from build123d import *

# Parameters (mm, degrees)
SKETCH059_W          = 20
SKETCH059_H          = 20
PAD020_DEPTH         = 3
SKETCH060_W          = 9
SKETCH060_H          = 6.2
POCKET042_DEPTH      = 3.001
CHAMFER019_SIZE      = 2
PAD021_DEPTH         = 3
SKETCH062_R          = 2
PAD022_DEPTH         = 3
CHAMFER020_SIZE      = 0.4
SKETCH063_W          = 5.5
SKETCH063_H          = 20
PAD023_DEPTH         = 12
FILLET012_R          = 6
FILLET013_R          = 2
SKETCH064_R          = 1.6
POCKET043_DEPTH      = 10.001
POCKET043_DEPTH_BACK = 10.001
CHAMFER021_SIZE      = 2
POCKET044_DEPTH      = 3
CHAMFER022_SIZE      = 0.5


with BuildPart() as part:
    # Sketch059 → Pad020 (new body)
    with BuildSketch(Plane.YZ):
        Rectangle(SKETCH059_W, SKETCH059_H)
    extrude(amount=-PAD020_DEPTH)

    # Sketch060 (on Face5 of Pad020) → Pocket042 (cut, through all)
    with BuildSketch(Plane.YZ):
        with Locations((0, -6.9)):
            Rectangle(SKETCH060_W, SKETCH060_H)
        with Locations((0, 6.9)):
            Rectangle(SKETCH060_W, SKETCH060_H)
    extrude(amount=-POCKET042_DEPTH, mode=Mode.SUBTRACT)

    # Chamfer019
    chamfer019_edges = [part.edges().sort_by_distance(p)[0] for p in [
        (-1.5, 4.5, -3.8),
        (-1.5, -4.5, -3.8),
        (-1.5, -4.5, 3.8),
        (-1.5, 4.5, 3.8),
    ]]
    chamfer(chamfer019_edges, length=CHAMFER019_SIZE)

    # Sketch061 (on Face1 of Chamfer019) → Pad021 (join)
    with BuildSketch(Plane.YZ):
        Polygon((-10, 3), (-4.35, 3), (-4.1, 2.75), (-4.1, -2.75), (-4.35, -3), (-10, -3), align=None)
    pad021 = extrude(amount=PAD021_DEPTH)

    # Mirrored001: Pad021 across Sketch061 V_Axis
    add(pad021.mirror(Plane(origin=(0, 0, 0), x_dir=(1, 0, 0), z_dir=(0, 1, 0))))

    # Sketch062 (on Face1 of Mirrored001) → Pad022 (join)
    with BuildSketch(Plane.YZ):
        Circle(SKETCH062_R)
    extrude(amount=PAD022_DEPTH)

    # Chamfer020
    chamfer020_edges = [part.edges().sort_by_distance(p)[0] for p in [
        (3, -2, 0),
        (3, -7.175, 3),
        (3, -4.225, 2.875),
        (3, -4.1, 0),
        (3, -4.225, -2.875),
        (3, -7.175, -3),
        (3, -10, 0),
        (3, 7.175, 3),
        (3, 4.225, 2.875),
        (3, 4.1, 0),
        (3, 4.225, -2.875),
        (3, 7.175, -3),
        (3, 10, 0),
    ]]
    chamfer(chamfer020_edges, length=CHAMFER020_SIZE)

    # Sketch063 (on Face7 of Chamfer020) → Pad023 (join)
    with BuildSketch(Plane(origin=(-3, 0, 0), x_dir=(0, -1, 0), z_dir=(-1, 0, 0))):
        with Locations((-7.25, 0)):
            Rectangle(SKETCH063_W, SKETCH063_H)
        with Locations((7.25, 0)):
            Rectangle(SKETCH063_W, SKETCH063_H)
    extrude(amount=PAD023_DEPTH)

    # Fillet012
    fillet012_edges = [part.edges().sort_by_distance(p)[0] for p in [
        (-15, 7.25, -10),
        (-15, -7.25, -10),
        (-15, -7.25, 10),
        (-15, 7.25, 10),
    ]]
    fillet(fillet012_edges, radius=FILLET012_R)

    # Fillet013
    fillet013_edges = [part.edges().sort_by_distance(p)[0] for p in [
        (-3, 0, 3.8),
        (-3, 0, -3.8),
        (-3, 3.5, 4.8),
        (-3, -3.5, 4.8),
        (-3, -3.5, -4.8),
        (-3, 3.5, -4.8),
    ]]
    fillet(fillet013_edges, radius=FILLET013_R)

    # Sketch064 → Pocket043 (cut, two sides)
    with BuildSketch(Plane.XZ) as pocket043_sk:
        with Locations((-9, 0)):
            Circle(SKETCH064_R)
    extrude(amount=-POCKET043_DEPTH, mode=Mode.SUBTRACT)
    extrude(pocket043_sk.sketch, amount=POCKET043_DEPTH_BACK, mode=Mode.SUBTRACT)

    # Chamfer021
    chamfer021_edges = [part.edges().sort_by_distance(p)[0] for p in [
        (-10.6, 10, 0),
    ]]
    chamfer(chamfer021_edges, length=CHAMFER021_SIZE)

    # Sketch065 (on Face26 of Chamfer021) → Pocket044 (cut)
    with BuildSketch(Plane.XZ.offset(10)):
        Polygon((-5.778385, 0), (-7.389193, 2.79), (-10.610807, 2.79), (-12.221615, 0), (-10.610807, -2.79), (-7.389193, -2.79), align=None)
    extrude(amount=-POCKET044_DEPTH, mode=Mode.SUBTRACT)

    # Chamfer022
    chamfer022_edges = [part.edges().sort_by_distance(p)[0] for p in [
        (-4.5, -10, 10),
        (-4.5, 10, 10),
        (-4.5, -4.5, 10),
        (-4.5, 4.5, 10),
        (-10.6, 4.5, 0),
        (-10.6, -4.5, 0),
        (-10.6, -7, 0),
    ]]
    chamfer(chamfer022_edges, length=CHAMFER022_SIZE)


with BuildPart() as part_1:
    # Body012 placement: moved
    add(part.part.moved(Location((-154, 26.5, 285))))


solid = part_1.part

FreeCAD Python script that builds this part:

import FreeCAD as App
import Part
import Sketcher

V = App.Vector
Q = App.Units.Quantity


def edges_at(feature, points):
    """Names of the edges that pass closest to the given points."""
    edges = feature.Shape.Edges
    near = lambda p: min(range(len(edges)), key=lambda i: edges[i].distToShape(Part.Vertex(*p))[0])
    return sorted({f"Edge{near(p) + 1}" for p in points})

doc = App.newDocument("Part")
params = doc.addObject("Spreadsheet::Sheet", "Params")
for row, (alias, value) in enumerate([
    ("sketch1_width", "20 mm"),
    ("pad1_length", "3 mm"),
    ("sketch2_width", "9 mm"),
    ("sketch2_height", "6.2 mm"),
    ("chamfer_size", "2 mm"),
    ("sketch3_height", "6 mm"),
    ("sketch3_height2", "5.5 mm"),
    ("sketch3_width", "5.65 mm"),
    ("pad2_length", "3 mm"),
    ("sketch4_diameter", "4 mm"),
    ("pad3_length", "3 mm"),
    ("chamfer2_size", "0.4 mm"),
    ("sketch5_height", "20 mm"),
    ("sketch5_width", "5.5 mm"),
    ("pad4_length", "12 mm"),
    ("fillet_radius", "6 mm"),
    ("fillet2_radius", "2 mm"),
    ("sketch6_diameter", "3.2 mm"),
    ("chamfer3_size", "2 mm"),
    ("pocket3_length", "3 mm"),
    ("chamfer4_size", "0.5 mm"),
], start=1):
    params.set(f"A{row}", alias)
    params.set(f"B{row}", "=" + value)
    params.setAlias(f"B{row}", alias)

body = doc.addObject("PartDesign::Body", "Body")

# Sketch on YZ plane
sketch1 = doc.addObject("Sketcher::SketchObject", "Sketch")
body.addObject(sketch1)
sketch1.AttachmentSupport = (doc.YZ_Plane, [""])
sketch1.MapMode = "FlatFace"
sketch1.addGeometry(Part.LineSegment(V(-10, 10, 0), V(-10, -10, 0)), False)
sketch1.addGeometry(Part.LineSegment(V(-10, -10, 0), V(10, -10, 0)), False)
sketch1.addGeometry(Part.LineSegment(V(10, -10, 0), V(10, 10, 0)), False)
sketch1.addGeometry(Part.LineSegment(V(10, 10, 0), V(-10, 10, 0)), False)
sketch1.addConstraint(Sketcher.Constraint("Coincident", 0, 2, 1, 1))
sketch1.addConstraint(Sketcher.Constraint("Coincident", 1, 2, 2, 1))
sketch1.addConstraint(Sketcher.Constraint("Coincident", 2, 2, 3, 1))
sketch1.addConstraint(Sketcher.Constraint("Coincident", 3, 2, 0, 1))
sketch1.addConstraint(Sketcher.Constraint("Vertical", 0))
sketch1.addConstraint(Sketcher.Constraint("Horizontal", 1))
sketch1.addConstraint(Sketcher.Constraint("Vertical", 2))
sketch1.addConstraint(Sketcher.Constraint("Horizontal", 3))
sketch1.addConstraint(Sketcher.Constraint("Symmetric", 0, 2, 2, 2, -1, 1))
sketch1.addConstraint(Sketcher.Constraint("Equal", 3, 0))
sketch1.addConstraint(Sketcher.Constraint("DistanceX", 1, 1, 1, 2, Q("20 mm")))
sketch1.setExpression("Constraints[10]", "Params.sketch1_width")
pad1 = doc.addObject("PartDesign::Pad", "Pad")
body.addObject(pad1)
pad1.Profile = sketch1
pad1.setExpression("Length", "Params.pad1_length")
pad1.Reversed = True

# Sketch on YZ plane
sketch2 = doc.addObject("Sketcher::SketchObject", "Sketch001")
body.addObject(sketch2)
sketch2.AttachmentSupport = (doc.YZ_Plane, [""])
sketch2.MapMode = "FlatFace"
sketch2.addGeometry(Part.LineSegment(V(-4.5, -3.8, 0), V(-4.5, -10, 0)), False)
sketch2.addGeometry(Part.LineSegment(V(-4.5, -10, 0), V(4.5, -10, 0)), False)
sketch2.addGeometry(Part.LineSegment(V(4.5, -10, 0), V(4.5, -3.8, 0)), False)
sketch2.addGeometry(Part.LineSegment(V(4.5, -3.8, 0), V(-4.5, -3.8, 0)), False)
sketch2.addGeometry(Part.LineSegment(V(-4.5, 10, 0), V(-4.5, 3.8, 0)), False)
sketch2.addGeometry(Part.LineSegment(V(-4.5, 3.8, 0), V(4.5, 3.8, 0)), False)
sketch2.addGeometry(Part.LineSegment(V(4.5, 3.8, 0), V(4.5, 10, 0)), False)
sketch2.addGeometry(Part.LineSegment(V(4.5, 10, 0), V(-4.5, 10, 0)), False)
sketch2.addConstraint(Sketcher.Constraint("Coincident", 0, 2, 1, 1))
sketch2.addConstraint(Sketcher.Constraint("Coincident", 1, 2, 2, 1))
sketch2.addConstraint(Sketcher.Constraint("Coincident", 2, 2, 3, 1))
sketch2.addConstraint(Sketcher.Constraint("Coincident", 3, 2, 0, 1))
sketch2.addConstraint(Sketcher.Constraint("Coincident", 4, 2, 5, 1))
sketch2.addConstraint(Sketcher.Constraint("Coincident", 5, 2, 6, 1))
sketch2.addConstraint(Sketcher.Constraint("Coincident", 6, 2, 7, 1))
sketch2.addConstraint(Sketcher.Constraint("Coincident", 7, 2, 4, 1))
sketch2.addConstraint(Sketcher.Constraint("Vertical", 0))
sketch2.addConstraint(Sketcher.Constraint("Horizontal", 1))
sketch2.addConstraint(Sketcher.Constraint("Vertical", 2))
sketch2.addConstraint(Sketcher.Constraint("Horizontal", 3))
sketch2.addConstraint(Sketcher.Constraint("Vertical", 4))
sketch2.addConstraint(Sketcher.Constraint("Horizontal", 5))
sketch2.addConstraint(Sketcher.Constraint("Vertical", 6))
sketch2.addConstraint(Sketcher.Constraint("Horizontal", 7))
sketch2.addConstraint(Sketcher.Constraint("Symmetric", 2, 2, 4, 2, -1, 1))
sketch2.addConstraint(Sketcher.Constraint("Symmetric", 0, 2, 6, 2, -1, 1))
sketch2.addConstraint(Sketcher.Constraint("Vertical", 3, 2, 4, 2))
sketch2.addConstraint(Sketcher.Constraint("DistanceX", 1, 1, 1, 2, Q("9 mm")))
sketch2.addConstraint(Sketcher.Constraint("DistanceY", 0, 2, 0, 1, Q("6.2 mm")))
sketch2.addConstraint(Sketcher.Constraint("DistanceY", 0, 2, -1, 1, Q("10 mm")))
sketch2.setExpression("Constraints[19]", "Params.sketch2_width")
sketch2.setExpression("Constraints[20]", "Params.sketch2_height")
pocket1 = doc.addObject("PartDesign::Pocket", "Pocket")
body.addObject(pocket1)
pocket1.Profile = sketch2
pocket1.Type = "ThroughAll"
doc.recompute()

chamfer = doc.addObject("PartDesign::Chamfer", "Chamfer")
body.addObject(chamfer)
chamfer.Base = (pocket1, edges_at(pocket1, [
    (-1.5, 4.5, -3.8),
    (-1.5, -4.5, -3.8),
    (-1.5, -4.5, 3.8),
    (-1.5, 4.5, 3.8),
]))
chamfer.setExpression("Size", "Params.chamfer_size")

# Sketch on YZ plane
sketch3 = doc.addObject("Sketcher::SketchObject", "Sketch002")
body.addObject(sketch3)
sketch3.AttachmentSupport = (doc.YZ_Plane, [""])
sketch3.MapMode = "FlatFace"
sketch3.addGeometry(Part.LineSegment(V(-4.35, 3, 0), V(-10, 3, 0)), False)
sketch3.addGeometry(Part.LineSegment(V(-10, 3, 0), V(-10, -3, 0)), False)
sketch3.addGeometry(Part.LineSegment(V(-10, -3, 0), V(-4.35, -3, 0)), False)
sketch3.addGeometry(Part.LineSegment(V(-4.35, -3, 0), V(-4.1, -2.75, 0)), False)
sketch3.addGeometry(Part.LineSegment(V(-4.1, -2.75, 0), V(-4.1, 2.75, 0)), False)
sketch3.addGeometry(Part.LineSegment(V(-4.1, 2.75, 0), V(-4.35, 3, 0)), False)
sketch3.addConstraint(Sketcher.Constraint("Coincident", 0, 2, 1, 1))
sketch3.addConstraint(Sketcher.Constraint("Coincident", 1, 2, 2, 1))
sketch3.addConstraint(Sketcher.Constraint("Coincident", 2, 2, 3, 1))
sketch3.addConstraint(Sketcher.Constraint("Coincident", 3, 2, 4, 1))
sketch3.addConstraint(Sketcher.Constraint("Coincident", 4, 2, 5, 1))
sketch3.addConstraint(Sketcher.Constraint("Coincident", 5, 2, 0, 1))
sketch3.addConstraint(Sketcher.Constraint("Horizontal", 0))
sketch3.addConstraint(Sketcher.Constraint("Vertical", 1))
sketch3.addConstraint(Sketcher.Constraint("Horizontal", 2))
sketch3.addConstraint(Sketcher.Constraint("Vertical", 4))
sketch3.addConstraint(Sketcher.Constraint("Symmetric", 2, 2, 5, 2, -1))
sketch3.addConstraint(Sketcher.Constraint("Perpendicular", 3, 5))
sketch3.addConstraint(Sketcher.Constraint("Equal", 3, 5))
sketch3.addConstraint(Sketcher.Constraint("DistanceY", 1, 2, 1, 1, Q("6 mm")))
sketch3.addConstraint(Sketcher.Constraint("DistanceY", 4, 1, 4, 2, Q("5.5 mm")))
sketch3.addConstraint(Sketcher.Constraint("DistanceX", 0, 2, -1, 1, Q("10 mm")))
sketch3.addConstraint(Sketcher.Constraint("DistanceX", 0, 2, 0, 1, Q("5.65 mm")))
sketch3.setExpression("Constraints[13]", "Params.sketch3_height")
sketch3.setExpression("Constraints[14]", "Params.sketch3_height2")
sketch3.setExpression("Constraints[16]", "Params.sketch3_width")
pad2 = doc.addObject("PartDesign::Pad", "Pad001")
body.addObject(pad2)
pad2.Profile = sketch3
pad2.setExpression("Length", "Params.pad2_length")
doc.recompute()

mirrored = doc.addObject("PartDesign::Mirrored", "Mirrored")
body.addObject(mirrored)
mirrored.Originals = [pad2]
mirrored.MirrorPlane = (doc.XZ_Plane, [""])
body.Tip = mirrored

# Sketch on YZ plane
sketch4 = doc.addObject("Sketcher::SketchObject", "Sketch003")
body.addObject(sketch4)
sketch4.AttachmentSupport = (doc.YZ_Plane, [""])
sketch4.MapMode = "FlatFace"
sketch4.addGeometry(Part.Circle(V(0, 0, 0), V(0, 0, 1), 2), False)
sketch4.addConstraint(Sketcher.Constraint("Coincident", 0, 3, -1, 1))
sketch4.addConstraint(Sketcher.Constraint("Diameter", 0, Q("4 mm")))
sketch4.setExpression("Constraints[1]", "Params.sketch4_diameter")
pad3 = doc.addObject("PartDesign::Pad", "Pad002")
body.addObject(pad3)
pad3.Profile = sketch4
pad3.setExpression("Length", "Params.pad3_length")
doc.recompute()

chamfer2 = doc.addObject("PartDesign::Chamfer", "Chamfer001")
body.addObject(chamfer2)
chamfer2.Base = (pad3, edges_at(pad3, [
    (3, -2, 0),
    (3, -7.175, 3),
    (3, -4.225, 2.875),
    (3, -4.1, 0),
    (3, -4.225, -2.875),
    (3, -7.175, -3),
    (3, -10, 0),
    (3, 7.175, 3),
    (3, 4.225, 2.875),
    (3, 4.1, 0),
    (3, 4.225, -2.875),
    (3, 7.175, -3),
    (3, 10, 0),
]))
chamfer2.setExpression("Size", "Params.chamfer2_size")

# Sketch on YZ plane
sketch5 = doc.addObject("Sketcher::SketchObject", "Sketch004")
body.addObject(sketch5)
sketch5.AttachmentSupport = (doc.YZ_Plane, [""])
sketch5.MapMode = "FlatFace"
sketch5.AttachmentOffset = App.Placement(V(0, 0, -3), App.Rotation())
sketch5.addGeometry(Part.LineSegment(V(10, 10, 0), V(10, -10, 0)), False)
sketch5.addGeometry(Part.LineSegment(V(10, -10, 0), V(4.5, -10, 0)), False)
sketch5.addGeometry(Part.LineSegment(V(4.5, -10, 0), V(4.5, 10, 0)), False)
sketch5.addGeometry(Part.LineSegment(V(4.5, 10, 0), V(10, 10, 0)), False)
sketch5.addGeometry(Part.LineSegment(V(-4.5, 10, 0), V(-4.5, -10, 0)), False)
sketch5.addGeometry(Part.LineSegment(V(-4.5, -10, 0), V(-10, -10, 0)), False)
sketch5.addGeometry(Part.LineSegment(V(-10, -10, 0), V(-10, 10, 0)), False)
sketch5.addGeometry(Part.LineSegment(V(-10, 10, 0), V(-4.5, 10, 0)), False)
sketch5.addConstraint(Sketcher.Constraint("Coincident", 0, 2, 1, 1))
sketch5.addConstraint(Sketcher.Constraint("Coincident", 1, 2, 2, 1))
sketch5.addConstraint(Sketcher.Constraint("Coincident", 2, 2, 3, 1))
sketch5.addConstraint(Sketcher.Constraint("Coincident", 3, 2, 0, 1))
sketch5.addConstraint(Sketcher.Constraint("Coincident", 4, 2, 5, 1))
sketch5.addConstraint(Sketcher.Constraint("Coincident", 5, 2, 6, 1))
sketch5.addConstraint(Sketcher.Constraint("Coincident", 6, 2, 7, 1))
sketch5.addConstraint(Sketcher.Constraint("Coincident", 7, 2, 4, 1))
sketch5.addConstraint(Sketcher.Constraint("Vertical", 0))
sketch5.addConstraint(Sketcher.Constraint("Horizontal", 1))
sketch5.addConstraint(Sketcher.Constraint("Vertical", 2))
sketch5.addConstraint(Sketcher.Constraint("Horizontal", 3))
sketch5.addConstraint(Sketcher.Constraint("Vertical", 4))
sketch5.addConstraint(Sketcher.Constraint("Horizontal", 5))
sketch5.addConstraint(Sketcher.Constraint("Vertical", 6))
sketch5.addConstraint(Sketcher.Constraint("Horizontal", 7))
sketch5.addConstraint(Sketcher.Constraint("Symmetric", 2, 2, 4, 2, -1, 1))
sketch5.addConstraint(Sketcher.Constraint("Symmetric", 0, 2, 6, 2, -1, 1))
sketch5.addConstraint(Sketcher.Constraint("Horizontal", 1, 2, 4, 2))
sketch5.addConstraint(Sketcher.Constraint("DistanceY", 0, 2, 0, 1, Q("20 mm")))
sketch5.addConstraint(Sketcher.Constraint("DistanceX", 1, 2, 1, 1, Q("5.5 mm")))
sketch5.addConstraint(Sketcher.Constraint("DistanceX", -1, 1, 0, 2, Q("10 mm")))
sketch5.setExpression("Constraints[19]", "Params.sketch5_height")
sketch5.setExpression("Constraints[20]", "Params.sketch5_width")
pad4 = doc.addObject("PartDesign::Pad", "Pad003")
body.addObject(pad4)
pad4.Profile = sketch5
pad4.setExpression("Length", "Params.pad4_length")
pad4.Reversed = True
doc.recompute()

fillet = doc.addObject("PartDesign::Fillet", "Fillet")
body.addObject(fillet)
fillet.Base = (pad4, edges_at(pad4, [
    (-15, 7.25, -10),
    (-15, -7.25, -10),
    (-15, -7.25, 10),
    (-15, 7.25, 10),
]))
fillet.setExpression("Radius", "Params.fillet_radius")
doc.recompute()

fillet2 = doc.addObject("PartDesign::Fillet", "Fillet001")
body.addObject(fillet2)
fillet2.Base = (fillet, edges_at(fillet, [
    (-3, 0, 3.8),
    (-3, 0, -3.8),
    (-3, 3.5, 4.8),
    (-3, -3.5, 4.8),
    (-3, -3.5, -4.8),
    (-3, 3.5, -4.8),
]))
fillet2.setExpression("Radius", "Params.fillet2_radius")

# Sketch on XZ plane
sketch6 = doc.addObject("Sketcher::SketchObject", "Sketch005")
body.addObject(sketch6)
sketch6.AttachmentSupport = (doc.XZ_Plane, [""])
sketch6.MapMode = "FlatFace"
sketch6.addGeometry(Part.Circle(V(-9, 0, 0), V(0, 0, 1), 1.6), False)
sketch6.addConstraint(Sketcher.Constraint("PointOnObject", 0, 3, -1))
sketch6.addConstraint(Sketcher.Constraint("Diameter", 0, Q("3.2 mm")))
sketch6.addConstraint(Sketcher.Constraint("DistanceX", 0, 3, -1, 1, Q("9 mm")))
sketch6.setExpression("Constraints[1]", "Params.sketch6_diameter")
pocket2 = doc.addObject("PartDesign::Pocket", "Pocket001")
body.addObject(pocket2)
pocket2.Profile = sketch6
pocket2.Type = "ThroughAll"
pocket2.Midplane = True
doc.recompute()

chamfer3 = doc.addObject("PartDesign::Chamfer", "Chamfer002")
body.addObject(chamfer3)
chamfer3.Base = (pocket2, edges_at(pocket2, [(-10.6, 10, 0)]))
chamfer3.setExpression("Size", "Params.chamfer3_size")

# Sketch on XZ plane
sketch7 = doc.addObject("Sketcher::SketchObject", "Sketch006")
body.addObject(sketch7)
sketch7.AttachmentSupport = (doc.XZ_Plane, [""])
sketch7.MapMode = "FlatFace"
sketch7.AttachmentOffset = App.Placement(V(0, 0, 10), App.Rotation())
sketch7.addGeometry(Part.LineSegment(V(-5.778385, 0, 0), V(-7.389193, 2.79, 0)), False)
sketch7.addGeometry(Part.LineSegment(V(-7.389193, 2.79, 0), V(-10.610807, 2.79, 0)), False)
sketch7.addGeometry(Part.LineSegment(V(-10.610807, 2.79, 0), V(-12.221615, 0, 0)), False)
sketch7.addGeometry(Part.LineSegment(V(-12.221615, 0, 0), V(-10.610807, -2.79, 0)), False)
sketch7.addGeometry(Part.LineSegment(V(-10.610807, -2.79, 0), V(-7.389193, -2.79, 0)), False)
sketch7.addGeometry(Part.LineSegment(V(-7.389193, -2.79, 0), V(-5.778385, 0, 0)), False)
sketch7.addConstraint(Sketcher.Constraint("Coincident", 0, 2, 1, 1))
sketch7.addConstraint(Sketcher.Constraint("Coincident", 1, 2, 2, 1))
sketch7.addConstraint(Sketcher.Constraint("Coincident", 2, 2, 3, 1))
sketch7.addConstraint(Sketcher.Constraint("Coincident", 3, 2, 4, 1))
sketch7.addConstraint(Sketcher.Constraint("Coincident", 4, 2, 5, 1))
sketch7.addConstraint(Sketcher.Constraint("Coincident", 5, 2, 0, 1))
sketch7.addConstraint(Sketcher.Constraint("Horizontal", 1))
sketch7.addConstraint(Sketcher.Constraint("Horizontal", 4))
sketch7.addConstraint(Sketcher.Constraint("Symmetric", 1, 2, 3, 2, -1))
sketch7.addConstraint(Sketcher.Constraint("PointOnObject", 2, 2, -1))
sketch7.addConstraint(Sketcher.Constraint("PointOnObject", 5, 2, -1))
sketch7.addConstraint(Sketcher.Constraint("Parallel", 0, 3))
sketch7.addConstraint(Sketcher.Constraint("Parallel", 2, 5))
sketch7.addConstraint(Sketcher.Constraint("Angle", 0, Q("120.000012 deg")))
sketch7.addConstraint(Sketcher.Constraint("DistanceY", -1, 1, 0, 2, Q("2.79 mm")))
sketch7.addConstraint(Sketcher.Constraint("DistanceX", 1, 2, 1, 1, Q("3.221614 mm")))
sketch7.addConstraint(Sketcher.Constraint("DistanceX", 0, 2, -1, 1, Q("7.389193 mm")))
pocket3 = doc.addObject("PartDesign::Pocket", "Pocket002")
body.addObject(pocket3)
pocket3.Profile = sketch7
pocket3.setExpression("Length", "Params.pocket3_length")
doc.recompute()

chamfer4 = doc.addObject("PartDesign::Chamfer", "Chamfer003")
body.addObject(chamfer4)
chamfer4.Base = (pocket3, edges_at(pocket3, [
    (-4.5, -10, 10),
    (-4.5, 10, 10),
    (-4.5, -4.5, 10),
    (-4.5, 4.5, 10),
    (-10.6, 4.5, 0),
    (-10.6, -4.5, 0),
    (-10.6, -7, 0),
]))
chamfer4.setExpression("Size", "Params.chamfer4_size")
body2 = doc.addObject("PartDesign::Body", "Body001")
doc.recompute()

body.Placement = App.Placement(V(-154, 26.5, 285), App.Rotation(V(0, 0, 1), 0))
boolean = doc.addObject("PartDesign::Boolean", "Boolean")
body2.addObject(boolean)
boolean.Type = "Fuse"
boolean.addObjects([body])

doc.recompute()
